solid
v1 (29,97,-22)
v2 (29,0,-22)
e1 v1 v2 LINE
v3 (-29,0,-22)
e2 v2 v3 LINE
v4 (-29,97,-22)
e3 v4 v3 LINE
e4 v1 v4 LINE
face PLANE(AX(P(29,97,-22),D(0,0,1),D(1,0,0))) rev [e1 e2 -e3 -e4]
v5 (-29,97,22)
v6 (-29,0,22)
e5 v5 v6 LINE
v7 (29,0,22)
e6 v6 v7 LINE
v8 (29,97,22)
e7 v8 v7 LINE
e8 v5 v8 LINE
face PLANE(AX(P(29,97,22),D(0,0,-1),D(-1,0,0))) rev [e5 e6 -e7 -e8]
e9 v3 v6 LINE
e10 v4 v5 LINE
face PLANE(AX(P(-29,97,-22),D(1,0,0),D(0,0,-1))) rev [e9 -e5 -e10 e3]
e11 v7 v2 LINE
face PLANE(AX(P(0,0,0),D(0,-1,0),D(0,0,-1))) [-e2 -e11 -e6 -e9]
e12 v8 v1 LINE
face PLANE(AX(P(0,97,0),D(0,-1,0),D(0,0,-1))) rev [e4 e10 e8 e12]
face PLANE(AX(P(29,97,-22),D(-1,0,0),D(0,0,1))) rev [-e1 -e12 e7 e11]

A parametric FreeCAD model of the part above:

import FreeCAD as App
import Part
import Sketcher
from FreeCAD import Vector
Q = App.Units.Quantity


def add_polygon(sketch, points):
    """Adds a closed chain of lines whose ends are joined by coincident constraints."""
    first, n = sketch.GeometryCount, len(points)
    for a, b in zip(points, points[1:] + points[:1]):
        sketch.addGeometry(Part.LineSegment(App.Vector(*a, 0), App.Vector(*b, 0)), False)
    for i in range(n):
        sketch.addConstraint(Sketcher.Constraint("Coincident", first + i, 2, first + (i + 1) % n, 1))

doc = App.newDocument("Part")
body = doc.addObject("PartDesign::Body", "Body")

# Sketch on XZ plane
sketch1 = doc.addObject("Sketcher::SketchObject", "Sketch")
body.addObject(sketch1)
sketch1.AttachmentSupport = (doc.XZ_Plane, [""])
sketch1.MapMode = "FlatFace"
add_polygon(sketch1, [(-29, -22), (-29, 22), (29, 22), (29, -22)])  # lines 0-3
sketch1.addConstraint([
    Sketcher.Constraint("Vertical", 0),
    Sketcher.Constraint("Horizontal", 1),
    Sketcher.Constraint("Vertical", 2),
    Sketcher.Constraint("Horizontal", 3),
    Sketcher.Constraint("Symmetric", 0, 2, 2, 2, -1, 1),
    Sketcher.Constraint("DistanceX", 1, 1, 1, 2, Q("58 mm")),
    Sketcher.Constraint("DistanceY", 0, 1, 0, 2, Q("44 mm")),
])
pad1 = doc.addObject("PartDesign::Pad", "Pad")
body.addObject(pad1)
pad1.Profile = sketch1
pad1.Length = 97
pad1.Reversed = True

doc.recompute()
